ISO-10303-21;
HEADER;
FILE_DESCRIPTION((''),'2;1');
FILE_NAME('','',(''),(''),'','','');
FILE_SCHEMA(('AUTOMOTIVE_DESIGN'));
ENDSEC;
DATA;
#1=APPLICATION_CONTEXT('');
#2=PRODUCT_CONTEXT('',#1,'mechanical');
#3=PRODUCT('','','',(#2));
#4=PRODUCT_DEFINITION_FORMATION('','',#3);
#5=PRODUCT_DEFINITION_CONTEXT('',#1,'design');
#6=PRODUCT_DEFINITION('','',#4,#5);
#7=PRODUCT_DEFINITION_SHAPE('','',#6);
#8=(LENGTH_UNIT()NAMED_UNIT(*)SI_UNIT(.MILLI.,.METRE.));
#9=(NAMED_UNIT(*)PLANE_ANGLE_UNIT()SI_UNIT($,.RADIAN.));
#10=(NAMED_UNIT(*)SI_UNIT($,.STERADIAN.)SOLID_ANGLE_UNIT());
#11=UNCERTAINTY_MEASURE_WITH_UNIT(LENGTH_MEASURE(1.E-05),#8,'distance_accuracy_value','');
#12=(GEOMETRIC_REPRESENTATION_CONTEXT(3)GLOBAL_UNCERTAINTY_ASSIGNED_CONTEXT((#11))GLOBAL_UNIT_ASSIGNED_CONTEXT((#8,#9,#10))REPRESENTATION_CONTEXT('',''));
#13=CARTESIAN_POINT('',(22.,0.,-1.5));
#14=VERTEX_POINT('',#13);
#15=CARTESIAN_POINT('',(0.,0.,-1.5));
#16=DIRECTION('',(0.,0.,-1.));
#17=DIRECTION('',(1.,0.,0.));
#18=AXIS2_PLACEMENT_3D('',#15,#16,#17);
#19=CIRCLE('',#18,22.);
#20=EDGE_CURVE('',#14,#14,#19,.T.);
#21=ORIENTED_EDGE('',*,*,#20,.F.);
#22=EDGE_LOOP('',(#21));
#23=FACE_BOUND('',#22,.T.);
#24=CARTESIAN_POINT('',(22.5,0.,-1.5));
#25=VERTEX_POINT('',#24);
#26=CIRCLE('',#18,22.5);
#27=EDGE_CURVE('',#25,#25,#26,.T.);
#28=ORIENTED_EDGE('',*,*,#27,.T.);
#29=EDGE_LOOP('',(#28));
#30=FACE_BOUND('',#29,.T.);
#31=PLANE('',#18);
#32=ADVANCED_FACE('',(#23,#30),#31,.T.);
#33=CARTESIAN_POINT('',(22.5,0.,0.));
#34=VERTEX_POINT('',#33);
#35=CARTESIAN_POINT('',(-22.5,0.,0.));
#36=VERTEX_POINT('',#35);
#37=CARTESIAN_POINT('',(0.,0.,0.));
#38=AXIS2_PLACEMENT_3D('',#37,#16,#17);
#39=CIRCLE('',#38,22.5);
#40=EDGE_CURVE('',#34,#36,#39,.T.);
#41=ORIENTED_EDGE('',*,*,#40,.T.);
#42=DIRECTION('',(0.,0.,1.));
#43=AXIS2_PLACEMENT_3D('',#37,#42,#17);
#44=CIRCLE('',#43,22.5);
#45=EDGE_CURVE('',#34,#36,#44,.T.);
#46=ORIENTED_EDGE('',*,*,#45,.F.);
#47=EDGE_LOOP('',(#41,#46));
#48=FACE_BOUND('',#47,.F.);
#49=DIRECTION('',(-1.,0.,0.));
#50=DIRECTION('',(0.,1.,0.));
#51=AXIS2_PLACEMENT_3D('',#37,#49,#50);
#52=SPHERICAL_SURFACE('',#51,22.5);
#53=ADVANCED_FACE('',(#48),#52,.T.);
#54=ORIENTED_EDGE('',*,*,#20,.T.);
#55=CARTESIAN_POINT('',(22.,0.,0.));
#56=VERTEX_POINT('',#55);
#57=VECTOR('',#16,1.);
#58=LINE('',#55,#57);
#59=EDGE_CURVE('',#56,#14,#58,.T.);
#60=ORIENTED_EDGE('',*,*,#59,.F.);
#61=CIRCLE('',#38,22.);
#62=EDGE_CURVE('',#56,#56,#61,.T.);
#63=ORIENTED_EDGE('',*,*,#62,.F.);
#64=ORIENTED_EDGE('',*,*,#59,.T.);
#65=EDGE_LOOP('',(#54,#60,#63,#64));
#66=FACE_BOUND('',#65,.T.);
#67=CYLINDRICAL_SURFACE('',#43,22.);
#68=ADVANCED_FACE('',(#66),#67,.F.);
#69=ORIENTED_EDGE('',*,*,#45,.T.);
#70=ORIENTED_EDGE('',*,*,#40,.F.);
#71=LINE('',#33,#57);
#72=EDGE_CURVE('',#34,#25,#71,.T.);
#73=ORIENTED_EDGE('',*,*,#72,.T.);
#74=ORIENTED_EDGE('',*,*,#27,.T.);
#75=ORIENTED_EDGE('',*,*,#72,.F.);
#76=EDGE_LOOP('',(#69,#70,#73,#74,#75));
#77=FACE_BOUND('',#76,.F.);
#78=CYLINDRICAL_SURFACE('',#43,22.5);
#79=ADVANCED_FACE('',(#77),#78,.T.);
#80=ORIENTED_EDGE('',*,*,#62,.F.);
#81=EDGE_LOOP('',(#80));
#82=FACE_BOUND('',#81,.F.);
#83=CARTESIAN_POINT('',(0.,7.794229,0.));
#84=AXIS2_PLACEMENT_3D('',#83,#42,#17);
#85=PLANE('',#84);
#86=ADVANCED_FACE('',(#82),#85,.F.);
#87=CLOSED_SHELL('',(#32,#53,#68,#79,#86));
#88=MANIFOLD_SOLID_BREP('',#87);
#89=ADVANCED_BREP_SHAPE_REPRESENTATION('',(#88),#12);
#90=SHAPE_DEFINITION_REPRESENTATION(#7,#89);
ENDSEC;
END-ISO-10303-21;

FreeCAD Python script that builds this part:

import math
import FreeCAD as App
import Part
import Sketcher

doc = App.newDocument("Part")
params = doc.addObject("Spreadsheet::Sheet", "Params")
for row, (alias, value) in enumerate([
    ("sketch1_radius", "22.5 mm"),
    ("revolution_angle", "180 deg"),
    ("sketch2_diameter", "45 mm"),
    ("sketch2_diameter2", "44 mm"),
    ("pad1_length", "1.5 mm"),
], start=1):
    params.set(f"A{row}", alias)
    params.set(f"B{row}", "=" + value)
    params.setAlias(f"B{row}", alias)

body = doc.addObject("PartDesign::Body", "Body")

# Sketch on XY plane
sketch1 = doc.addObject("Sketcher::SketchObject", "Sketch")
body.addObject(sketch1)
sketch1.AttachmentSupport = (doc.XY_Plane, [""])
sketch1.MapMode = "FlatFace"
sketch1.addGeometry([
    Part.LineSegment(App.Vector(-22, 0, 0), App.Vector(22, 0, 0)),
    Part.ArcOfCircle(Part.Circle(App.Vector(0, 0, 0), App.Vector(0, 0, 1), 22), math.radians(0), math.radians(180)),
], False)
sketch1.addConstraint([
    Sketcher.Constraint("Coincident", 0, 1, 1, 2),
    Sketcher.Constraint("Coincident", 1, 1, 0, 2),
    Sketcher.Constraint("Horizontal", 0),
    Sketcher.Constraint("Coincident", 1, 3, -1, 1),
    Sketcher.Constraint("PointOnObject", 0, 1, -1),
    Sketcher.Constraint("Radius", 1, 22.5),
])
sketch1.setExpression("Constraints[5]", "Params.sketch1_radius")
revolution = doc.addObject("PartDesign::Revolution", "Revolution")
body.addObject(revolution)
revolution.Profile = sketch1
revolution.ReferenceAxis = (sketch1, ["H_Axis"])
revolution.setExpression("Angle", "Params.revolution_angle")

# Sketch on XY plane
sketch2 = doc.addObject("Sketcher::SketchObject", "Sketch001")
body.addObject(sketch2)
sketch2.AttachmentSupport = (doc.XY_Plane, [""])
sketch2.MapMode = "FlatFace"
sketch2.addGeometry([
    Part.Circle(App.Vector(0, 0, 0), App.Vector(0, 0, 1), 22),
    Part.Circle(App.Vector(0, 0, 0), App.Vector(0, 0, 1), 22),
], False)
sketch2.addConstraint([
    Sketcher.Constraint("Coincident", 0, 3, -1, 1),
    Sketcher.Constraint("Coincident", 1, 3, -1, 1),
    Sketcher.Constraint("Diameter", 0, 45.0),
    Sketcher.Constraint("Diameter", 1, 44.0),
])
sketch2.setExpression("Constraints[2]", "Params.sketch2_diameter")
sketch2.setExpression("Constraints[3]", "Params.sketch2_diameter2")
pad1 = doc.addObject("PartDesign::Pad", "Pad")
body.addObject(pad1)
pad1.Profile = sketch2
pad1.setExpression("Length", "Params.pad1_length")
pad1.Reversed = True

doc.recompute()
